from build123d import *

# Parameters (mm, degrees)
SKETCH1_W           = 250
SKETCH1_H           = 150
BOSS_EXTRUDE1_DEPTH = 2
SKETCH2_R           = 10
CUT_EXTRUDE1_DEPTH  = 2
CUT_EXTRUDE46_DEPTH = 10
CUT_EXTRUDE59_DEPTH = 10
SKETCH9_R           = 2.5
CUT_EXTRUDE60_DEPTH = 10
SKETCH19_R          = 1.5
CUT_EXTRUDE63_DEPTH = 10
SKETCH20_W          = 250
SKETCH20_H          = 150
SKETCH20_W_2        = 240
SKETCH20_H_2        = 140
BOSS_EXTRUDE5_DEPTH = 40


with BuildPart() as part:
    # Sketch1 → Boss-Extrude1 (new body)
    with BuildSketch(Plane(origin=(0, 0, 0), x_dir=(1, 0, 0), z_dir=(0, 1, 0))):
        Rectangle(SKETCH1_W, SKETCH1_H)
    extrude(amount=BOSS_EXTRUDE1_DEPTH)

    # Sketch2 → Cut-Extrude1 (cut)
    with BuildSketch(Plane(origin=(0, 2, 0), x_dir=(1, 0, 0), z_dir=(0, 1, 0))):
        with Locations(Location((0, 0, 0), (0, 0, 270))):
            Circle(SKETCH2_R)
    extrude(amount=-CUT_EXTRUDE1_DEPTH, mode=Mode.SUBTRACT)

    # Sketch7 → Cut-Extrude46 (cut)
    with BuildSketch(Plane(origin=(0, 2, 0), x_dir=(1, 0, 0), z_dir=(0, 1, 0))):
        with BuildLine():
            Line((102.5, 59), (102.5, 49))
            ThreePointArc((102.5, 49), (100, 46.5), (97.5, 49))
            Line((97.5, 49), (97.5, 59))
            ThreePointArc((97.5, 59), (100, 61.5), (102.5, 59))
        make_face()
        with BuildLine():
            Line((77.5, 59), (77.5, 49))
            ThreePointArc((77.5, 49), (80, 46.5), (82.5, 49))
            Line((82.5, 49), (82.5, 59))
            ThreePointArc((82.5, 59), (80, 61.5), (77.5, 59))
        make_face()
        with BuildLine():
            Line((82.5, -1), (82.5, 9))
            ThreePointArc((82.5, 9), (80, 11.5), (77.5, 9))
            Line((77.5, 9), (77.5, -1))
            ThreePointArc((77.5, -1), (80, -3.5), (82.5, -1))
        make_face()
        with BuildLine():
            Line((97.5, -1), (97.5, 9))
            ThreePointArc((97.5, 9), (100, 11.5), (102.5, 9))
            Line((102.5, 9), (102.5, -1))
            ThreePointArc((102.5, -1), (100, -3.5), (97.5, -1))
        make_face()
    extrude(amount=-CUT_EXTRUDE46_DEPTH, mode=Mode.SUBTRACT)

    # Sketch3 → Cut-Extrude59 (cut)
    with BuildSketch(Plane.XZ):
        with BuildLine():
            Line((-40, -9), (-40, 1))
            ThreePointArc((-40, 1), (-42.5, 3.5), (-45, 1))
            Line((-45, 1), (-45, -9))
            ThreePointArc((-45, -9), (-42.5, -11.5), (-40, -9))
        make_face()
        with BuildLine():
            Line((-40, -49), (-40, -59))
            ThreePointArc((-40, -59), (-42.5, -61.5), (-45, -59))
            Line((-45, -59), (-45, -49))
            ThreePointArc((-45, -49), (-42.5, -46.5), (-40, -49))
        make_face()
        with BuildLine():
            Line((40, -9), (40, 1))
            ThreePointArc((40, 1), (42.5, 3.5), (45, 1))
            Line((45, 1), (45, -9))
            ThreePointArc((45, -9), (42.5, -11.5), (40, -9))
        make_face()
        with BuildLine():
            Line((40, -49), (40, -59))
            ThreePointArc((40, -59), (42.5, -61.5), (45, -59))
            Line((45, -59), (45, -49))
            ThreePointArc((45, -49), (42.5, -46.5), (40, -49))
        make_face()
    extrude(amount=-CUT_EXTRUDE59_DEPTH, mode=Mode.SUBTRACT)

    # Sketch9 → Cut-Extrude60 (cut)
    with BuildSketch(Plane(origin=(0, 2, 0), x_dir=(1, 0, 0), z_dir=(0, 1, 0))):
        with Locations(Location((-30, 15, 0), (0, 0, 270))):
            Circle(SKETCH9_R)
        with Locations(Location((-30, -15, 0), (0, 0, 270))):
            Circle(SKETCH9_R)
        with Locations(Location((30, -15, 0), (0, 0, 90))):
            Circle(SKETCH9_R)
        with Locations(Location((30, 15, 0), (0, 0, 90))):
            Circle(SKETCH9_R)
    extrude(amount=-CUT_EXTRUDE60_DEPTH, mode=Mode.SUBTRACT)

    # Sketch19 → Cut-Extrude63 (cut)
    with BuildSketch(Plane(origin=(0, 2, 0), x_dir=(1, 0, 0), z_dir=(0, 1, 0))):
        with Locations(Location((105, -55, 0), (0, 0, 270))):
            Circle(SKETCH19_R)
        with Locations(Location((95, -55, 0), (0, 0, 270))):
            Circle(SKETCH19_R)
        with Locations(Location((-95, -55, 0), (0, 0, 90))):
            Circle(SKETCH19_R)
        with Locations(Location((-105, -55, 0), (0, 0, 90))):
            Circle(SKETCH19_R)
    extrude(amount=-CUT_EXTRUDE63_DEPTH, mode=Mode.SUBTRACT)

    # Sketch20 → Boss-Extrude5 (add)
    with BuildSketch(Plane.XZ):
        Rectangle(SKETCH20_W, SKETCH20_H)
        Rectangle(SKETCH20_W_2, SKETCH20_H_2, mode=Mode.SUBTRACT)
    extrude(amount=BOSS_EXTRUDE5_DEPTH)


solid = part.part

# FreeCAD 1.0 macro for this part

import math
import FreeCAD as App
import Part
import Sketcher
from FreeCAD import Vector

doc = App.newDocument("Part")
body = doc.addObject("PartDesign::Body", "Body")

sketch1 = doc.addObject("Sketcher::SketchObject", "Sketch")
body.addObject(sketch1)
sketch1.AttachmentSupport = (doc.XZ_Plane, [""])
sketch1.MapMode = "FlatFace"
sketch1.addGeometry([
    Part.LineSegment(Vector(-125, -75, 0), Vector(-125, 75, 0)),
    Part.LineSegment(Vector(-125, 75, 0), Vector(125, 75, 0)),
    Part.LineSegment(Vector(125, 75, 0), Vector(125, -75, 0)),
    Part.LineSegment(Vector(125, -75, 0), Vector(-125, -75, 0)),
], False)
sketch1.addConstraint([
    Sketcher.Constraint("Coincident", 0, 2, 1, 1),
    Sketcher.Constraint("Coincident", 1, 2, 2, 1),
    Sketcher.Constraint("Coincident", 2, 2, 3, 1),
    Sketcher.Constraint("Coincident", 3, 2, 0, 1),
    Sketcher.Constraint("Vertical", 0),
    Sketcher.Constraint("Horizontal", 1),
    Sketcher.Constraint("Vertical", 2),
    Sketcher.Constraint("Horizontal", 3),
    Sketcher.Constraint("Symmetric", 0, 2, 2, 2, -1, 1),
    Sketcher.Constraint("DistanceX", 1, 1, 1, 2, 250.0),
    Sketcher.Constraint("DistanceY", 0, 1, 0, 2, 150.0),
])
pad1 = doc.addObject("PartDesign::Pad", "Pad")
body.addObject(pad1)
pad1.Profile = sketch1
pad1.Length = 2
pad1.Reversed = True

sketch2 = doc.addObject("Sketcher::SketchObject", "Sketch001")
body.addObject(sketch2)
sketch2.AttachmentSupport = (doc.XZ_Plane, [""])
sketch2.MapMode = "FlatFace"
sketch2.AttachmentOffset = App.Placement(Vector(0, 0, -2), App.Rotation())
sketch2.addGeometry(Part.Circle(Vector(0, 0, 0), Vector(0, 0, 1), 10), False)
sketch2.addConstraint([
    Sketcher.Constraint("Coincident", 0, 3, -1, 1),
    Sketcher.Constraint("Diameter", 0, 20.0),
])
pocket1 = doc.addObject("PartDesign::Pocket", "Pocket")
body.addObject(pocket1)
pocket1.Profile = sketch2
pocket1.Length = 2
pocket1.Reversed = True

sketch3 = doc.addObject("Sketcher::SketchObject", "Sketch002")
body.addObject(sketch3)
sketch3.AttachmentSupport = (doc.XZ_Plane, [""])
sketch3.MapMode = "FlatFace"
sketch3.AttachmentOffset = App.Placement(Vector(0, 0, -2), App.Rotation())
sketch3.addGeometry([
    Part.LineSegment(Vector(102.5, -49, 0), Vector(102.5, -59, 0)),
    Part.ArcOfCircle(Part.Circle(Vector(100, -59, 0), Vector(0, 0, 1), 2.5), math.radians(180), math.radians(360)),
    Part.LineSegment(Vector(97.5, -59, 0), Vector(97.5, -49, 0)),
    Part.ArcOfCircle(Part.Circle(Vector(100, -49, 0), Vector(0, 0, 1), 2.5), math.radians(0), math.radians(180)),
    Part.LineSegment(Vector(77.5, -59, 0), Vector(77.5, -49, 0)),
    Part.ArcOfCircle(Part.Circle(Vector(80, -49, 0), Vector(0, 0, 1), 2.5), math.radians(0), math.radians(180)),
    Part.LineSegment(Vector(82.5, -49, 0), Vector(82.5, -59, 0)),
    Part.ArcOfCircle(Part.Circle(Vector(80, -59, 0), Vector(0, 0, 1), 2.5), math.radians(180), math.radians(360)),
    Part.LineSegment(Vector(82.5, 1, 0), Vector(82.5, -9, 0)),
    Part.ArcOfCircle(Part.Circle(Vector(80, -9, 0), Vector(0, 0, 1), 2.5), math.radians(180), math.radians(360)),
    Part.LineSegment(Vector(77.5, -9, 0), Vector(77.5, 1, 0)),
    Part.ArcOfCircle(Part.Circle(Vector(80, 1, 0), Vector(0, 0, 1), 2.5), math.radians(0), math.radians(180)),
    Part.LineSegment(Vector(97.5, -9, 0), Vector(97.5, 1, 0)),
    Part.ArcOfCircle(Part.Circle(Vector(100, 1, 0), Vector(0, 0, 1), 2.5), math.radians(0), math.radians(180)),
    Part.LineSegment(Vector(102.5, 1, 0), Vector(102.5, -9, 0)),
    Part.ArcOfCircle(Part.Circle(Vector(100, -9, 0), Vector(0, 0, 1), 2.5), math.radians(180), math.radians(360)),
], False)
sketch3.addConstraint([
    Sketcher.Constraint("Tangent", 0, 2, 1, 2),
    Sketcher.Constraint("Tangent", 1, 1, 2, 1),
    Sketcher.Constraint("Tangent", 2, 2, 3, 2),
    Sketcher.Constraint("Tangent", 3, 1, 0, 1),
    Sketcher.Constraint("Tangent", 4, 2, 5, 2),
    Sketcher.Constraint("Tangent", 5, 1, 6, 1),
    Sketcher.Constraint("Tangent", 6, 2, 7, 2),
    Sketcher.Constraint("Tangent", 7, 1, 4, 1),
    Sketcher.Constraint("Tangent", 8, 2, 9, 2),
    Sketcher.Constraint("Tangent", 9, 1, 10, 1),
    Sketcher.Constraint("Tangent", 10, 2, 11, 2),
    Sketcher.Constraint("Tangent", 11, 1, 8, 1),
    Sketcher.Constraint("Tangent", 12, 2, 13, 2),
    Sketcher.Constraint("Tangent", 13, 1, 14, 1),
    Sketcher.Constraint("Tangent", 14, 2, 15, 2),
    Sketcher.Constraint("Tangent", 15, 1, 12, 1),
    Sketcher.Constraint("Vertical", 0),
    Sketcher.Constraint("Vertical", 2),
    Sketcher.Constraint("Vertical", 4),
    Sketcher.Constraint("Vertical", 6),
    Sketcher.Constraint("Vertical", 8),
    Sketcher.Constraint("Vertical", 10),
    Sketcher.Constraint("Vertical", 12),
    Sketcher.Constraint("Vertical", 14),
    Sketcher.Constraint("Equal", 3, 5),
    Sketcher.Constraint("Equal", 7, 9),
    Sketcher.Constraint("Equal", 11, 13),
    Sketcher.Constraint("Horizontal", 3, 3, 5, 3),
    Sketcher.Constraint("Horizontal", 1, 3, 7, 3),
    Sketcher.Constraint("Horizontal", 11, 3, 13, 3),
    Sketcher.Constraint("Horizontal", 9, 3, 15, 3),
    Sketcher.Constraint("Vertical", 7, 3, 9, 3),
    Sketcher.Constraint("Vertical", 3, 3, 13, 3),
    Sketcher.Constraint("Equal", 6, 8),
    Sketcher.Constraint("Radius", 1, 2.5),
    Sketcher.Constraint("DistanceY", 0, 2, 0, 1, 10.0),
    Sketcher.Constraint("DistanceX", -1, 1, 1, 3, 100.0),
    Sketcher.Constraint("DistanceY", 1, 3, -1, 1, 59.0),
    Sketcher.Constraint("DistanceX", -1, 1, 5, 3, 80.0),
    Sketcher.Constraint("DistanceY", 9, 3, -1, 1, 9.0),
])
pocket2 = doc.addObject("PartDesign::Pocket", "Pocket001")
body.addObject(pocket2)
pocket2.Profile = sketch3
pocket2.Length = 10
pocket2.Reversed = True

sketch4 = doc.addObject("Sketcher::SketchObject", "Sketch003")
body.addObject(sketch4)
sketch4.AttachmentSupport = (doc.XZ_Plane, [""])
sketch4.MapMode = "FlatFace"
sketch4.addGeometry([
    Part.LineSegment(Vector(-40, -9, 0), Vector(-40, 1, 0)),
    Part.ArcOfCircle(Part.Circle(Vector(-42.5, 1, 0), Vector(0, 0, 1), 2.5), math.radians(0), math.radians(180)),
    Part.LineSegment(Vector(-45, 1, 0), Vector(-45, -9, 0)),
    Part.ArcOfCircle(Part.Circle(Vector(-42.5, -9, 0), Vector(0, 0, 1), 2.5), math.radians(180), math.radians(360)),
    Part.LineSegment(Vector(-40, -59, 0), Vector(-40, -49, 0)),
    Part.ArcOfCircle(Part.Circle(Vector(-42.5, -49, 0), Vector(0, 0, 1), 2.5), math.radians(0), math.radians(180)),
    Part.LineSegment(Vector(-45, -49, 0), Vector(-45, -59, 0)),
    Part.ArcOfCircle(Part.Circle(Vector(-42.5, -59, 0), Vector(0, 0, 1), 2.5), math.radians(180), math.radians(360)),
    Part.LineSegment(Vector(40, 1, 0), Vector(40, -9, 0)),
    Part.ArcOfCircle(Part.Circle(Vector(42.5, -9, 0), Vector(0, 0, 1), 2.5), math.radians(180), math.radians(360)),
    Part.LineSegment(Vector(45, -9, 0), Vector(45, 1, 0)),
    Part.ArcOfCircle(Part.Circle(Vector(42.5, 1, 0), Vector(0, 0, 1), 2.5), math.radians(0), math.radians(180)),
    Part.LineSegment(Vector(40, -49, 0), Vector(40, -59, 0)),
    Part.ArcOfCircle(Part.Circle(Vector(42.5, -59, 0), Vector(0, 0, 1), 2.5), math.radians(180), math.radians(360)),
    Part.LineSegment(Vector(45, -59, 0), Vector(45, -49, 0)),
    Part.ArcOfCircle(Part.Circle(Vector(42.5, -49, 0), Vector(0, 0, 1), 2.5), math.radians(0), math.radians(180)),
], False)
sketch4.addConstraint([
    Sketcher.Constraint("Tangent", 0, 2, 1, 1),
    Sketcher.Constraint("Tangent", 1, 2, 2, 1),
    Sketcher.Constraint("Tangent", 2, 2, 3, 1),
    Sketcher.Constraint("Tangent", 3, 2, 0, 1),
    Sketcher.Constraint("Tangent", 4, 2, 5, 1),
    Sketcher.Constraint("Tangent", 5, 2, 6, 1),
    Sketcher.Constraint("Tangent", 6, 2, 7, 1),
    Sketcher.Constraint("Tangent", 7, 2, 4, 1),
    Sketcher.Constraint("Tangent", 8, 2, 9, 1),
    Sketcher.Constraint("Tangent", 9, 2, 10, 1),
    Sketcher.Constraint("Tangent", 10, 2, 11, 1),
    Sketcher.Constraint("Tangent", 11, 2, 8, 1),
    Sketcher.Constraint("Tangent", 12, 2, 13, 1),
    Sketcher.Constraint("Tangent", 13, 2, 14, 1),
    Sketcher.Constraint("Tangent", 14, 2, 15, 1),
    Sketcher.Constraint("Tangent", 15, 2, 12, 1),
    Sketcher.Constraint("Vertical", 0),
    Sketcher.Constraint("Vertical", 2),
    Sketcher.Constraint("Vertical", 4),
    Sketcher.Constraint("Vertical", 6),
    Sketcher.Constraint("Vertical", 8),
    Sketcher.Constraint("Vertical", 10),
    Sketcher.Constraint("Vertical", 12),
    Sketcher.Constraint("Vertical", 14),
    Sketcher.Constraint("Equal", 3, 5),
    Sketcher.Constraint("Equal", 7, 9),
    Sketcher.Constraint("Equal", 11, 13),
    Sketcher.Constraint("Symmetric", 3, 3, 9, 3, -2),
    Sketcher.Constraint("Symmetric", 7, 3, 13, 3, -2),
    Sketcher.Constraint("Horizontal", 1, 3, 11, 3),
    Sketcher.Constraint("Horizontal", 5, 3, 15, 3),
    Sketcher.Constraint("Vertical", 3, 3, 5, 3),
    Sketcher.Constraint("Equal", 2, 4),
    Sketcher.Constraint("Radius", 1, 2.5),
    Sketcher.Constraint("DistanceY", 0, 1, 0, 2, 10.0),
    Sketcher.Constraint("DistanceY", -1, 1, 1, 3, 1.0),
    Sketcher.Constraint("DistanceY", 5, 3, -1, 1, 49.0),
    Sketcher.Constraint("DistanceX", 0, 2, -1, 1, 40.0),
])
pocket3 = doc.addObject("PartDesign::Pocket", "Pocket002")
body.addObject(pocket3)
pocket3.Profile = sketch4
pocket3.Length = 10

sketch5 = doc.addObject("Sketcher::SketchObject", "Sketch004")
body.addObject(sketch5)
sketch5.AttachmentSupport = (doc.XZ_Plane, [""])
sketch5.MapMode = "FlatFace"
sketch5.AttachmentOffset = App.Placement(Vector(0, 0, -2), App.Rotation())
sketch5.addGeometry([
    Part.Circle(Vector(-30, -15, 0), Vector(0, 0, 1), 2.5),
    Part.Circle(Vector(-30, 15, 0), Vector(0, 0, 1), 2.5),
    Part.Circle(Vector(30, 15, 0), Vector(0, 0, 1), 2.5),
    Part.Circle(Vector(30, -15, 0), Vector(0, 0, 1), 2.5),
], False)
sketch5.addConstraint([
    Sketcher.Constraint("Equal", 0, 1),
    Sketcher.Constraint("Equal", 1, 2),
    Sketcher.Constraint("Equal", 2, 3),
    Sketcher.Constraint("Symmetric", 0, 3, 2, 3, -1, 1),
    Sketcher.Constraint("Symmetric", 1, 3, 3, 3, -1, 1),
    Sketcher.Constraint("Symmetric", 1, 3, 2, 3, -2),
    Sketcher.Constraint("Diameter", 0, 5.0),
    Sketcher.Constraint("DistanceX", 0, 3, -1, 1, 30.0),
    Sketcher.Constraint("DistanceY", 0, 3, -1, 1, 15.0),
])
pocket4 = doc.addObject("PartDesign::Pocket", "Pocket003")
body.addObject(pocket4)
pocket4.Profile = sketch5
pocket4.Length = 10
pocket4.Reversed = True

sketch6 = doc.addObject("Sketcher::SketchObject", "Sketch005")
body.addObject(sketch6)
sketch6.AttachmentSupport = (doc.XZ_Plane, [""])
sketch6.MapMode = "FlatFace"
sketch6.AttachmentOffset = App.Placement(Vector(0, 0, -2), App.Rotation())
sketch6.addGeometry([
    Part.Circle(Vector(105, 55, 0), Vector(0, 0, 1), 1.5),
    Part.Circle(Vector(95, 55, 0), Vector(0, 0, 1), 1.5),
    Part.Circle(Vector(-95, 55, 0), Vector(0, 0, 1), 1.5),
    Part.Circle(Vector(-105, 55, 0), Vector(0, 0, 1), 1.5),
], False)
sketch6.addConstraint([
    Sketcher.Constraint("Equal", 0, 1),
    Sketcher.Constraint("Equal", 1, 2),
    Sketcher.Constraint("Equal", 2, 3),
    Sketcher.Constraint("Symmetric", 1, 3, 2, 3, -2),
    Sketcher.Constraint("Symmetric", 0, 3, 3, 3, -2),
    Sketcher.Constraint("Horizontal", 0, 3, 1, 3),
    Sketcher.Constraint("Diameter", 0, 3.0),
    Sketcher.Constraint("DistanceX", -1, 1, 0, 3, 105.0),
    Sketcher.Constraint("DistanceY", -1, 1, 0, 3, 55.0),
    Sketcher.Constraint("DistanceX", -1, 1, 1, 3, 95.0),
])
pocket5 = doc.addObject("PartDesign::Pocket", "Pocket004")
body.addObject(pocket5)
pocket5.Profile = sketch6
pocket5.Length = 10
pocket5.Reversed = True

sketch7 = doc.addObject("Sketcher::SketchObject", "Sketch006")
body.addObject(sketch7)
sketch7.AttachmentSupport = (doc.XZ_Plane, [""])
sketch7.MapMode = "FlatFace"
sketch7.addGeometry([
    Part.LineSegment(Vector(-125, 75, 0), Vector(-125, -75, 0)),
    Part.LineSegment(Vector(-125, -75, 0), Vector(125, -75, 0)),
    Part.LineSegment(Vector(125, -75, 0), Vector(125, 75, 0)),
    Part.LineSegment(Vector(125, 75, 0), Vector(-125, 75, 0)),
    Part.LineSegment(Vector(120, -70, 0), Vector(-120, -70, 0)),
    Part.LineSegment(Vector(-120, -70, 0), Vector(-120, 70, 0)),
    Part.LineSegment(Vector(-120, 70, 0), Vector(120, 70, 0)),
    Part.LineSegment(Vector(120, 70, 0), Vector(120, -70, 0)),
], False)
sketch7.addConstraint([
    Sketcher.Constraint("Coincident", 0, 2, 1, 1),
    Sketcher.Constraint("Coincident", 1, 2, 2, 1),
    Sketcher.Constraint("Coincident", 2, 2, 3, 1),
    Sketcher.Constraint("Coincident", 3, 2, 0, 1),
    Sketcher.Constraint("Coincident", 4, 2, 5, 1),
    Sketcher.Constraint("Coincident", 5, 2, 6, 1),
    Sketcher.Constraint("Coincident", 6, 2, 7, 1),
    Sketcher.Constraint("Coincident", 7, 2, 4, 1),
    Sketcher.Constraint("Vertical", 0),
    Sketcher.Constraint("Horizontal", 1),
    Sketcher.Constraint("Vertical", 2),
    Sketcher.Constraint("Horizontal", 3),
    Sketcher.Constraint("Horizontal", 4),
    Sketcher.Constraint("Vertical", 5),
    Sketcher.Constraint("Horizontal", 6),
    Sketcher.Constraint("Vertical", 7),
    Sketcher.Constraint("Symmetric", 0, 2, 2, 2, -1, 1),
    Sketcher.Constraint("Symmetric", 4, 2, 6, 2, -1, 1),
    Sketcher.Constraint("DistanceX", 1, 1, 1, 2, 250.0),
    Sketcher.Constraint("DistanceX", 4, 2, 4, 1, 240.0),
    Sketcher.Constraint("DistanceY", 0, 2, 0, 1, 150.0),
    Sketcher.Constraint("DistanceY", 5, 1, 5, 2, 140.0),
])
pad2 = doc.addObject("PartDesign::Pad", "Pad001")
body.addObject(pad2)
pad2.Profile = sketch7
pad2.Length = 40

doc.recompute()
